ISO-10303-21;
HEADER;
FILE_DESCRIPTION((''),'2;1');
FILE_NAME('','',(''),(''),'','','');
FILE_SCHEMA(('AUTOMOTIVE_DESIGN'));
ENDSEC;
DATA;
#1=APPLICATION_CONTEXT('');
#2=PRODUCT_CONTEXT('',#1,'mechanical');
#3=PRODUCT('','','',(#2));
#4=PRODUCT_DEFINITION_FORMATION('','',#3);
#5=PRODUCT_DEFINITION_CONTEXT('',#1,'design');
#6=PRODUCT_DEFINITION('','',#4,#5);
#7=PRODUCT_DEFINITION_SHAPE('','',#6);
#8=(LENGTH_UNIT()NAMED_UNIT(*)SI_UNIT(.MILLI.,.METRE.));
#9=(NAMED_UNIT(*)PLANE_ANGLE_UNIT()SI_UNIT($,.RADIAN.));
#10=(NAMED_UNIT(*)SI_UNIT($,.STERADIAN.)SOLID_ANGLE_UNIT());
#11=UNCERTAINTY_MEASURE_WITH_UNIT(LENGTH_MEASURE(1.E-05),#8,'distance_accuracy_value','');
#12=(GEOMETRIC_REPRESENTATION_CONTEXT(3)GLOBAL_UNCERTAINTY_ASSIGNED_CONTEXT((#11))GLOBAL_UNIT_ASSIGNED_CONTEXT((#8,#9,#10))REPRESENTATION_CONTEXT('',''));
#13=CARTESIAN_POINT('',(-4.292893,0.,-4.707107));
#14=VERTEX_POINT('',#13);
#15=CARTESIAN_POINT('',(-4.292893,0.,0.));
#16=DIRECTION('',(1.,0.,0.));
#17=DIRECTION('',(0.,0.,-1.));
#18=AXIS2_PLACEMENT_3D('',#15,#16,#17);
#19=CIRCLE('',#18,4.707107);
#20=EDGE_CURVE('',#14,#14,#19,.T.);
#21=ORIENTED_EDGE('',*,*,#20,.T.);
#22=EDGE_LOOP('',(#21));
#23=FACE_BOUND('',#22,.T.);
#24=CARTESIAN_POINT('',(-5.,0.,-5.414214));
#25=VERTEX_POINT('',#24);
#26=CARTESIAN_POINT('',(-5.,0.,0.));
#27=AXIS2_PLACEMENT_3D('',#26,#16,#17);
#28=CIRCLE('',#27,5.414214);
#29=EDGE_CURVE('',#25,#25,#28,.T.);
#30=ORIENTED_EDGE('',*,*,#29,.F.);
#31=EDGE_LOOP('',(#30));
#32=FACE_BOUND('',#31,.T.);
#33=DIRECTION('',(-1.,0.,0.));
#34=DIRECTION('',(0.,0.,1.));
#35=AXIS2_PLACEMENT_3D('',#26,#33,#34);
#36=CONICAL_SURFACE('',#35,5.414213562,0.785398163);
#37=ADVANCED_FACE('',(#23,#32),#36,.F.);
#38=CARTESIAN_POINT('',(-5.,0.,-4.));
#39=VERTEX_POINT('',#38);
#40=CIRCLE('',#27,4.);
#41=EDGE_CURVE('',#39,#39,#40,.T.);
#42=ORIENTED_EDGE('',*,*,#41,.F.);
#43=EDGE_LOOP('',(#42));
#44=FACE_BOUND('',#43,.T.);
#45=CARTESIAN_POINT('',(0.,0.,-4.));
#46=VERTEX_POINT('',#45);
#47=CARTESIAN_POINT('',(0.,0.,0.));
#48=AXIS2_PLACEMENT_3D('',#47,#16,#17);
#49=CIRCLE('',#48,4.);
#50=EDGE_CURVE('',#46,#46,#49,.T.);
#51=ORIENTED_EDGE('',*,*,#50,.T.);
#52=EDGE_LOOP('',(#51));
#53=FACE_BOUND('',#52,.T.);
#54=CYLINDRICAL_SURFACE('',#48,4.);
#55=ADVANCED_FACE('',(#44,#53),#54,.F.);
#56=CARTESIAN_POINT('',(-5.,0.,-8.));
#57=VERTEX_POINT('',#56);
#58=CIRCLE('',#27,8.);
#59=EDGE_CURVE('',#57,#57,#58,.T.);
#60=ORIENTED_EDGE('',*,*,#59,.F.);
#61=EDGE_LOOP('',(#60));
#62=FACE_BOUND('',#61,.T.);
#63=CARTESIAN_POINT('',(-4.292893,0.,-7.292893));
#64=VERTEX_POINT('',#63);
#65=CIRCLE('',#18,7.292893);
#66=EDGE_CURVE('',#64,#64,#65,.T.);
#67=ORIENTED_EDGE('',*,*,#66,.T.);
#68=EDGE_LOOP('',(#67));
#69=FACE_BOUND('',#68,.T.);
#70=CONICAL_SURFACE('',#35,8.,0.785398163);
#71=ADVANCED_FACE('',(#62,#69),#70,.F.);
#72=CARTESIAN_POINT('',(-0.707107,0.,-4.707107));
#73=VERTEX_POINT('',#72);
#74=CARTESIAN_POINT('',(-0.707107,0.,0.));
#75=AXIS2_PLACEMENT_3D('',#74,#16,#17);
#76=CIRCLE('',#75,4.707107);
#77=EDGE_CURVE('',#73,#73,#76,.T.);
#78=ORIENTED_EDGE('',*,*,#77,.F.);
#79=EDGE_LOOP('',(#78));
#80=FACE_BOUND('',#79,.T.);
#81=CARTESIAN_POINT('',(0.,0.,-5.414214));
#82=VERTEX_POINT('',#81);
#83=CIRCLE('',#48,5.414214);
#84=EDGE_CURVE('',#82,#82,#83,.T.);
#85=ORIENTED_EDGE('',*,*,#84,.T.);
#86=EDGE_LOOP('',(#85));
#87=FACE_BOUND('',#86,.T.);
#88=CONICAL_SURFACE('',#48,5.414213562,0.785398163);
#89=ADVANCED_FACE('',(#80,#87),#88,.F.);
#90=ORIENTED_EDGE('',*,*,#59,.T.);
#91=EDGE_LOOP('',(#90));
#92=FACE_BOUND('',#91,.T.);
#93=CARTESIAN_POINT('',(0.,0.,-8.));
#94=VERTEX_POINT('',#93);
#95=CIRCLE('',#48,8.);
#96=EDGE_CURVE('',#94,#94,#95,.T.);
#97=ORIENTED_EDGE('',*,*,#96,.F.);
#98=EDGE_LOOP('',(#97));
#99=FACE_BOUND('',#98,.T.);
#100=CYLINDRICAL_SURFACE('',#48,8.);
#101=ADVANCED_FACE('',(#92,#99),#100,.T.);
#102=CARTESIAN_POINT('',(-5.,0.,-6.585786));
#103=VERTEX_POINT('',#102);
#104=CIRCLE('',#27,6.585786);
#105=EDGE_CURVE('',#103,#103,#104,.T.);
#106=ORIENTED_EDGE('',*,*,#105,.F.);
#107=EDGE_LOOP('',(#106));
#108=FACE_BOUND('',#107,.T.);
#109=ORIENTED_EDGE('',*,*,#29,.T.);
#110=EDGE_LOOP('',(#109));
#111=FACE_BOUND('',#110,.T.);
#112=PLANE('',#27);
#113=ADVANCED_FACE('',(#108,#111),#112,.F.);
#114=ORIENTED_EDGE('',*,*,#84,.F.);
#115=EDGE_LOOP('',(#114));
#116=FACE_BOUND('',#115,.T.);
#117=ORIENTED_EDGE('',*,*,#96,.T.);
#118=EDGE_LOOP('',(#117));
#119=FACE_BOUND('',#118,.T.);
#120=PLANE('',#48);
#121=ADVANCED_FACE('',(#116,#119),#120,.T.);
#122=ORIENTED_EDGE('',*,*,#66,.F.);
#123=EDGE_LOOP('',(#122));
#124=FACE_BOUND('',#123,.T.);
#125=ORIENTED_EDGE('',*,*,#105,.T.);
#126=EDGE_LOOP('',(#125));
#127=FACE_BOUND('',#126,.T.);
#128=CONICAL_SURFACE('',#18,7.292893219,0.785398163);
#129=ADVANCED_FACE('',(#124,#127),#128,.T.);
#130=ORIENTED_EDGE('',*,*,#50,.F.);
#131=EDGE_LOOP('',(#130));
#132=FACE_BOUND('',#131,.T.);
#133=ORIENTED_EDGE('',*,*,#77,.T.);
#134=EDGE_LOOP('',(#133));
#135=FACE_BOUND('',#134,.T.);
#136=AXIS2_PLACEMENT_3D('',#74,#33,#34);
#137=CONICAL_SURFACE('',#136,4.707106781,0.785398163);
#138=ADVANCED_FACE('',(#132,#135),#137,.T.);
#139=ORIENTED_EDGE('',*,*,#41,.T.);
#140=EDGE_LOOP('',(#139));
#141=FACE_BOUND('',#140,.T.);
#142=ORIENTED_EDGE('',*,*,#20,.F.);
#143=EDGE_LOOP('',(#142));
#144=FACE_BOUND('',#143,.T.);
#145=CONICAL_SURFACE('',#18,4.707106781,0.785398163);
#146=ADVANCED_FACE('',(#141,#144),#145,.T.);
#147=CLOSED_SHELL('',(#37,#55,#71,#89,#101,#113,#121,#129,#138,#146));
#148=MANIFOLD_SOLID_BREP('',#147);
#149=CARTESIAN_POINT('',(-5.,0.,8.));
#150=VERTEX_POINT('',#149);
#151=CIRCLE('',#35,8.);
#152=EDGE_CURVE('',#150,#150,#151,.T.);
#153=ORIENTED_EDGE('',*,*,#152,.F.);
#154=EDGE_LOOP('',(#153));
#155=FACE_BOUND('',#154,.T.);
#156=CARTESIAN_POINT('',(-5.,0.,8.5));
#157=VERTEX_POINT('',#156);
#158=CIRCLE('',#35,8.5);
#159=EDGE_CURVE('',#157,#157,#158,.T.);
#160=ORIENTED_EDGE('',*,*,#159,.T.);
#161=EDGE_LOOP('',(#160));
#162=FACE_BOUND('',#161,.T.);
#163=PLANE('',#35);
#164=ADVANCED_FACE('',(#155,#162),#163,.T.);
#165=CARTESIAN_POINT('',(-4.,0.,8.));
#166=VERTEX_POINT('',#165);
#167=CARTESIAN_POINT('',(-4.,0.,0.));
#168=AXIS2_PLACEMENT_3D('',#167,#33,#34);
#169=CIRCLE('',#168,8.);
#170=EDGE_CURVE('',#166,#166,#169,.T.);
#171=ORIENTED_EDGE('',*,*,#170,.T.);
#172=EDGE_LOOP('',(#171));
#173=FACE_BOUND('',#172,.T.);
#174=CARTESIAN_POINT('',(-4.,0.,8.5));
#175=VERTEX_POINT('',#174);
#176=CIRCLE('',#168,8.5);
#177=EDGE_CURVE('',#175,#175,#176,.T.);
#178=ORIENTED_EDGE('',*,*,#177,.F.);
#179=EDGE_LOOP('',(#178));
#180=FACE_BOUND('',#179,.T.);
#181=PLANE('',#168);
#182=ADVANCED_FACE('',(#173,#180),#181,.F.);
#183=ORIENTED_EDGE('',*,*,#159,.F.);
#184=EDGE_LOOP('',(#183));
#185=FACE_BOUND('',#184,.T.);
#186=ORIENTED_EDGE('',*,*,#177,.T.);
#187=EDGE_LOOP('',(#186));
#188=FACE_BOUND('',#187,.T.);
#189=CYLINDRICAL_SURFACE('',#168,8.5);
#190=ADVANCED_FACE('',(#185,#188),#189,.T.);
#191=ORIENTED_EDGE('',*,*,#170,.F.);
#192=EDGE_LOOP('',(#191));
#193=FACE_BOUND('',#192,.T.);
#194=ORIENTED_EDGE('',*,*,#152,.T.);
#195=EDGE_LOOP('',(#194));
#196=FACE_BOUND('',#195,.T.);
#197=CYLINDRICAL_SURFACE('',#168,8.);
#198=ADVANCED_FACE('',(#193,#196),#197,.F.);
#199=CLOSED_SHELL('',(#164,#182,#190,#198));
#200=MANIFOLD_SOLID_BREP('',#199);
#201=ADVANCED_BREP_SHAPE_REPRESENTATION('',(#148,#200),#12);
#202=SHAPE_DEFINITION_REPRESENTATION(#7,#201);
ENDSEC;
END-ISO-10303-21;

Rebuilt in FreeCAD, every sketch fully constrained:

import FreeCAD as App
import Part
import Sketcher

doc = App.newDocument("Part")
body = doc.addObject("PartDesign::Body", "Body")

sketch1 = doc.addObject("Sketcher::SketchObject", "Sketch")
body.addObject(sketch1)
sketch1.AttachmentSupport = (doc.XZ_Plane, [""])
sketch1.MapMode = "FlatFace"
sketch1.addGeometry([
    Part.LineSegment(App.Vector(0, 4, 0), App.Vector(-5, 4, 0)),
    Part.LineSegment(App.Vector(-5, 4, 0), App.Vector(-4.3, 4.7, 0)),
    Part.LineSegment(App.Vector(-4.3, 4.7, 0), App.Vector(-5, 5.4, 0)),
    Part.LineSegment(App.Vector(-5, 5.4, 0), App.Vector(-5, 6.6, 0)),
    Part.LineSegment(App.Vector(-5, 6.6, 0), App.Vector(-4.3, 7.3, 0)),
    Part.LineSegment(App.Vector(-4.3, 7.3, 0), App.Vector(-5, 8, 0)),
    Part.LineSegment(App.Vector(-5, 8, 0), App.Vector(0, 8, 0)),
    Part.LineSegment(App.Vector(0, 8, 0), App.Vector(0, 5.4, 0)),
    Part.LineSegment(App.Vector(0, 5.4, 0), App.Vector(-0.7, 4.7, 0)),
    Part.LineSegment(App.Vector(-0.7, 4.7, 0), App.Vector(0, 4, 0)),
], False)
sketch1.addConstraint([
    Sketcher.Constraint("Coincident", 0, 2, 1, 1),
    Sketcher.Constraint("Coincident", 1, 2, 2, 1),
    Sketcher.Constraint("Coincident", 2, 2, 3, 1),
    Sketcher.Constraint("Coincident", 3, 2, 4, 1),
    Sketcher.Constraint("Coincident", 4, 2, 5, 1),
    Sketcher.Constraint("Coincident", 5, 2, 6, 1),
    Sketcher.Constraint("Coincident", 6, 2, 7, 1),
    Sketcher.Constraint("Coincident", 7, 2, 8, 1),
    Sketcher.Constraint("Coincident", 8, 2, 9, 1),
    Sketcher.Constraint("Coincident", 9, 2, 0, 1),
    Sketcher.Constraint("Horizontal", 0),
    Sketcher.Constraint("Vertical", 3),
    Sketcher.Constraint("Horizontal", 6),
    Sketcher.Constraint("Vertical", 7),
    Sketcher.Constraint("PointOnObject", 6, 2, -2),
    Sketcher.Constraint("PointOnObject", 9, 2, -2),
    Sketcher.Constraint("Perpendicular", 1, 2),
    Sketcher.Constraint("Perpendicular", 2, 4),
    Sketcher.Constraint("Perpendicular", 4, 5),
    Sketcher.Constraint("Perpendicular", 5, 8),
    Sketcher.Constraint("Perpendicular", 8, 9),
    Sketcher.Constraint("Horizontal", 2, 2, 7, 2),
    Sketcher.Constraint("Horizontal", 1, 2, 8, 2),
    Sketcher.Constraint("Vertical", 0, 2, 2, 2),
    Sketcher.Constraint("Vertical", 1, 2, 4, 2),
    Sketcher.Constraint("Vertical", 3, 2, 5, 2),
    Sketcher.Constraint("DistanceX", 0, 2, 0, 1, 5.0),
    Sketcher.Constraint("Distance", 1, 1.0),
    Sketcher.Constraint("DistanceY", -1, 1, 0, 2, 4.0),
    Sketcher.Constraint("DistanceY", -1, 1, 5, 2, 8.0),
])
revolution = doc.addObject("PartDesign::Revolution", "Revolution")
body.addObject(revolution)
revolution.Profile = sketch1
revolution.ReferenceAxis = (sketch1, ["H_Axis"])
revolution.Angle = 360
body2 = doc.addObject("PartDesign::Body", "Body001")

sketch2 = doc.addObject("Sketcher::SketchObject", "Sketch001")
body2.addObject(sketch2)
sketch2.AttachmentSupport = (doc.getObject("YZ_Plane001"), [""])
sketch2.MapMode = "FlatFace"
sketch2.AttachmentOffset = App.Placement(App.Vector(0, 0, -5), App.Rotation())
sketch2.addGeometry([
    Part.Circle(App.Vector(0, 0, 0), App.Vector(0, 0, 1), 8),
    Part.Circle(App.Vector(0, 0, 0), App.Vector(0, 0, 1), 8),
], False)
sketch2.addConstraint([
    Sketcher.Constraint("Coincident", 0, 3, -1, 1),
    Sketcher.Constraint("Coincident", 1, 3, -1, 1),
    Sketcher.Constraint("Diameter", 0, 17.0),
    Sketcher.Constraint("Diameter", 1, 16.0),
])
pad1 = doc.addObject("PartDesign::Pad", "Pad")
body2.addObject(pad1)
pad1.Profile = sketch2
pad1.Length = 1

doc.recompute()
